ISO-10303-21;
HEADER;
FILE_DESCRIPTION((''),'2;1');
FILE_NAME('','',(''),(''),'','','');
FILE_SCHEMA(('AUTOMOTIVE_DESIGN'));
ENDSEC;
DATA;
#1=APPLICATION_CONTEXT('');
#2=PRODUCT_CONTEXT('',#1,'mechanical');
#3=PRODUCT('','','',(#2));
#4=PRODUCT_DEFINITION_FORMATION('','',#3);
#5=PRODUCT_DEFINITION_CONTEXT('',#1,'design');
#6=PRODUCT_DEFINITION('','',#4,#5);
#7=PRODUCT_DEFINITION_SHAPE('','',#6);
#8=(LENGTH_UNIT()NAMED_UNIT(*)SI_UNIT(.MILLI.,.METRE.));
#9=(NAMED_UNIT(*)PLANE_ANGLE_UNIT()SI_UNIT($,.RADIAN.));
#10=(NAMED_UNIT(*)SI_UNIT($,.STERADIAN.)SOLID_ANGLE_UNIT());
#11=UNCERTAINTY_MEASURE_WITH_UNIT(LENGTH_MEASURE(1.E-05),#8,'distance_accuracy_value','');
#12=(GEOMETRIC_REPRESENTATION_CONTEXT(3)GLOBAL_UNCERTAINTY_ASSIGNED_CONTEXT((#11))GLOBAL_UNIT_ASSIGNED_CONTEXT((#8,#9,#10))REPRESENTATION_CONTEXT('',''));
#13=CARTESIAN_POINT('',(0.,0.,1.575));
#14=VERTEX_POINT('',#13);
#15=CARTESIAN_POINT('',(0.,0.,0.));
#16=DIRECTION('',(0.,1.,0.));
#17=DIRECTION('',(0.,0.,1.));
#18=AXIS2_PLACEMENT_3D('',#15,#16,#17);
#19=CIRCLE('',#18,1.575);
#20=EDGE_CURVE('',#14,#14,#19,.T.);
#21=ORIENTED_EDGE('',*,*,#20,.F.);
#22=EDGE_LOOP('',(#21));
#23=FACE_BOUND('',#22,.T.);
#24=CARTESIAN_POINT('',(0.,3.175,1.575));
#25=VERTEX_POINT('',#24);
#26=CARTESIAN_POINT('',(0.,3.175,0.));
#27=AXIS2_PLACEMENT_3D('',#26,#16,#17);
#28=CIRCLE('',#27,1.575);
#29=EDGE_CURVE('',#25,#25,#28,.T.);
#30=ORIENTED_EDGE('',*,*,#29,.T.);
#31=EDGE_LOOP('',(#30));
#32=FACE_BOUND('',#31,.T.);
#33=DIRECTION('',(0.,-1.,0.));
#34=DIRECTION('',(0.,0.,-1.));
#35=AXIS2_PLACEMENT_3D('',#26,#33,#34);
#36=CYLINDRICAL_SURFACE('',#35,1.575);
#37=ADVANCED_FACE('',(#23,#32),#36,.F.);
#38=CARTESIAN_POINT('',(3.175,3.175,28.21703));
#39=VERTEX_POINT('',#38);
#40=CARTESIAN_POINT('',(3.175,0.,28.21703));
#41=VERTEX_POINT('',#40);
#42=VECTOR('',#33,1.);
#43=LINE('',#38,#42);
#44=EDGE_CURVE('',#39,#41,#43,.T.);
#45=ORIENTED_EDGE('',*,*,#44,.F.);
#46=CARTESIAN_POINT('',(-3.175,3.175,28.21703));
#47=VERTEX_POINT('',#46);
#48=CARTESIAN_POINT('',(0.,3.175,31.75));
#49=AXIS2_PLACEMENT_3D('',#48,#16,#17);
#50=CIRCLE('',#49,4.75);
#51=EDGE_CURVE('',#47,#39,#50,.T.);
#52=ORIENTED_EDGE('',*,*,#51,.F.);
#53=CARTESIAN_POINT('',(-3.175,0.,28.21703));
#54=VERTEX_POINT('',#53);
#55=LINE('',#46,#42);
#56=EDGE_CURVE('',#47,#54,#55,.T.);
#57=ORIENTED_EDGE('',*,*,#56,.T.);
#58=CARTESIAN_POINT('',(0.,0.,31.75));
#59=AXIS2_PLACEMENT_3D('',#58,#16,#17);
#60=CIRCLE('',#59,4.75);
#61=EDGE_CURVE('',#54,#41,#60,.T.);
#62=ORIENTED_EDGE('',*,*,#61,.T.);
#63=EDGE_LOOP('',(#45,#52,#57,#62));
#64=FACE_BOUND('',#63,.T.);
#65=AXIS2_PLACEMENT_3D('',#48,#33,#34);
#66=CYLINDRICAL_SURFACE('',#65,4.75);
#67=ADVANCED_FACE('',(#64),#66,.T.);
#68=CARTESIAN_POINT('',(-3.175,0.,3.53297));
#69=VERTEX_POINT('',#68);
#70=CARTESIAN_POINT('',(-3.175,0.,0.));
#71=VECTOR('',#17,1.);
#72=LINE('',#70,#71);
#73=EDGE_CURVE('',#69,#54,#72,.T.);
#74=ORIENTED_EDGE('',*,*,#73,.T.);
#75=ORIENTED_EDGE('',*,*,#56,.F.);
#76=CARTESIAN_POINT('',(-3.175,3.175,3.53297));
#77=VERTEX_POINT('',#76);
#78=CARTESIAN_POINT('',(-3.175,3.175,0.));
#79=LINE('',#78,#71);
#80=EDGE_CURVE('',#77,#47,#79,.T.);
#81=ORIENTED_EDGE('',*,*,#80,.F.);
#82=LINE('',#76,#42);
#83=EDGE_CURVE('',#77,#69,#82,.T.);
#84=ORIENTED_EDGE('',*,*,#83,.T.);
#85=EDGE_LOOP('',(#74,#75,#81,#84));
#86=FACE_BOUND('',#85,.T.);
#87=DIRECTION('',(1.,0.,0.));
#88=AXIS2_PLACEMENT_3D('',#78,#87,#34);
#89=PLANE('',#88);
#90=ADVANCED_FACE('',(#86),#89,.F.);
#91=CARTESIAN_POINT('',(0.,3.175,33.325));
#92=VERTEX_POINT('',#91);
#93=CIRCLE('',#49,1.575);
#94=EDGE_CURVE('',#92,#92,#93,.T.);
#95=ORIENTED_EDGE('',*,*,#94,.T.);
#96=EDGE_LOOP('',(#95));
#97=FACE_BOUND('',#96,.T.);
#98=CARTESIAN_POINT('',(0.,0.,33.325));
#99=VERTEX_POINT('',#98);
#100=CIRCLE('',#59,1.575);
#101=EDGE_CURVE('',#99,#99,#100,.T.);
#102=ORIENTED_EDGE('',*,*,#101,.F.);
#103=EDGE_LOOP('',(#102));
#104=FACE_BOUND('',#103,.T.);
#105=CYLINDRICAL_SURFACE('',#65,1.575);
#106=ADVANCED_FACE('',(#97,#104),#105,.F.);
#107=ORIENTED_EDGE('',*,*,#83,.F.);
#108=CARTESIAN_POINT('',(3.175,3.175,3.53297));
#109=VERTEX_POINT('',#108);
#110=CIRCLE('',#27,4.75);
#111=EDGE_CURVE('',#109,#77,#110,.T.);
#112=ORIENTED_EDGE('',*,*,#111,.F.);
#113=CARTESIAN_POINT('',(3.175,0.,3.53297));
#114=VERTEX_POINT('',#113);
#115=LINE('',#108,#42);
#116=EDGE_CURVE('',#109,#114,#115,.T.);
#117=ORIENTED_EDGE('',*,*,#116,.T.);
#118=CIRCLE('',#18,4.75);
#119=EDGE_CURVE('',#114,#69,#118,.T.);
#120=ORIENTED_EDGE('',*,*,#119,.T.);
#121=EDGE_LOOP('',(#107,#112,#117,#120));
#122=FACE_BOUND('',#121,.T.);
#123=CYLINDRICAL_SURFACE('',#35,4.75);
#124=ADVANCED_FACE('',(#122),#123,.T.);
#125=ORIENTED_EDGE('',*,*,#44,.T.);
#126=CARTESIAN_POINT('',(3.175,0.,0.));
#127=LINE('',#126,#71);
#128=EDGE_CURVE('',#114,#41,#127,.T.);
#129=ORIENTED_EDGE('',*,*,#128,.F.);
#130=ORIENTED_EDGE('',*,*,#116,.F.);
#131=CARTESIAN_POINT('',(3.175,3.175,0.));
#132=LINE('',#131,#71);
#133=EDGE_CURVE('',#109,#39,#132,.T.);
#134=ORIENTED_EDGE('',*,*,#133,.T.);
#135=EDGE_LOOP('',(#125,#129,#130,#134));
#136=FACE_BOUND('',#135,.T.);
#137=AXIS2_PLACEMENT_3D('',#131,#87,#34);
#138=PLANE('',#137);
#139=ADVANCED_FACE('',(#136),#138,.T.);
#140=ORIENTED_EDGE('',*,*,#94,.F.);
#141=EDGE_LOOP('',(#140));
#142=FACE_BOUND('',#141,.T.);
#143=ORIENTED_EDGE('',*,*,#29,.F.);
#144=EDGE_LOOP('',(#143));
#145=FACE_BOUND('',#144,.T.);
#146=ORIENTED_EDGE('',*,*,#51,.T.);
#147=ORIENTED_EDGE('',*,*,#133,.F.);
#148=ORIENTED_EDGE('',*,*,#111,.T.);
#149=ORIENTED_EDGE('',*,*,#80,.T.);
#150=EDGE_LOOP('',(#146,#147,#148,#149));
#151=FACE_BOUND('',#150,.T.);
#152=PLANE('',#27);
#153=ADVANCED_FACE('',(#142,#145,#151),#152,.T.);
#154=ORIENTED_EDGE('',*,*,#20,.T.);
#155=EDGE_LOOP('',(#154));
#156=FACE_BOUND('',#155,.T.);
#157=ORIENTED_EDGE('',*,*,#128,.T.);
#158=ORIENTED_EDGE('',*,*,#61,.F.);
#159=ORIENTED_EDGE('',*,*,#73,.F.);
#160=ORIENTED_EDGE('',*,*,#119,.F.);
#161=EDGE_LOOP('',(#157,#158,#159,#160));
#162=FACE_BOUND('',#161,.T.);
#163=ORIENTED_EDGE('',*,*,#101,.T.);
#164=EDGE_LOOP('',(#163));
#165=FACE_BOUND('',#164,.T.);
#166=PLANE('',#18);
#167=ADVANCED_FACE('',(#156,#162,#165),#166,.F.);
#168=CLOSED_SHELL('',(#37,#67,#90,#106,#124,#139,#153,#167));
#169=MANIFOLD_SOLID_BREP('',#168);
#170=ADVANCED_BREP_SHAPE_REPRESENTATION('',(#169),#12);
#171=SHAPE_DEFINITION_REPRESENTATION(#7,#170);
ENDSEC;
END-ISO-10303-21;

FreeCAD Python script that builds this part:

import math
import FreeCAD as App
import Part
import Sketcher
Q = App.Units.Quantity

doc = App.newDocument("Part")
params = doc.addObject("Spreadsheet::Sheet", "Params")
for row, (alias, value) in enumerate([
    ("sketch1_diameter", "3.15 mm"),
    ("sketch1_radius", "4.75 mm"),
    ("pad1_length", "3.175 mm"),
], start=1):
    params.set(f"A{row}", alias)
    params.set(f"B{row}", "=" + value)
    params.setAlias(f"B{row}", alias)

body = doc.addObject("PartDesign::Body", "Body")

# Sketch on XZ plane
sketch1 = body.newObject("Sketcher::SketchObject", "Sketch")
sketch1.AttachmentSupport = (doc.getObject("XZ_Plane"), [""])
sketch1.MapMode = "FlatFace"
sketch1.addGeometry([
    Part.LineSegment(App.Vector(3.2, 28.2, 0), App.Vector(3.2, 3.5, 0)),  # 0
    Part.ArcOfCircle(Part.Circle(App.Vector(0, 0, 0), App.Vector(0, 0, 1), 4.8), math.radians(132), math.radians(408)),  # 1
    Part.LineSegment(App.Vector(-3.2, 3.5, 0), App.Vector(-3.2, 28.2, 0)),  # 2
    Part.ArcOfCircle(Part.Circle(App.Vector(0, 31.8, 0), App.Vector(0, 0, 1), 4.8), math.radians(-48), math.radians(228)),  # 3
    Part.Circle(App.Vector(0, 31.8, 0), App.Vector(0, 0, 1), 1.6),  # 4
    Part.Circle(App.Vector(0, 0, 0), App.Vector(0, 0, 1), 1.6),  # 5
], False)
sketch1.addConstraint([
    Sketcher.Constraint("Coincident", 0, 2, 1, 2),
    Sketcher.Constraint("Coincident", 1, 1, 2, 1),
    Sketcher.Constraint("Coincident", 2, 2, 3, 2),
    Sketcher.Constraint("Coincident", 3, 1, 0, 1),
    Sketcher.Constraint("Vertical", 0),
    Sketcher.Constraint("Vertical", 2),
    Sketcher.Constraint("Coincident", 1, 3, -1, 1),
    Sketcher.Constraint("Coincident", 5, 3, -1, 1),
    Sketcher.Constraint("Coincident", 4, 3, 3, 3),
    Sketcher.Constraint("Equal", 1, 3),
    Sketcher.Constraint("Equal", 4, 5),
    Sketcher.Constraint("Symmetric", 2, 2, 3, 1, -2),
    Sketcher.Constraint("Diameter", 4, Q("3.15 mm")),
    Sketcher.Constraint("Radius", 1, Q("4.75 mm")),
    Sketcher.Constraint("DistanceY", -1, 1, 3, 3, Q("31.75 mm")),
    Sketcher.Constraint("DistanceX", 1, 1, 0, 2, Q("6.35 mm")),
])
sketch1.setExpression("Constraints[12]", "Params.sketch1_diameter")
sketch1.setExpression("Constraints[13]", "Params.sketch1_radius")
pad1 = body.newObject("PartDesign::Pad", "Pad")
pad1.Profile = sketch1
pad1.setExpression("Length", "Params.pad1_length")
pad1.Reversed = True

doc.recompute()
